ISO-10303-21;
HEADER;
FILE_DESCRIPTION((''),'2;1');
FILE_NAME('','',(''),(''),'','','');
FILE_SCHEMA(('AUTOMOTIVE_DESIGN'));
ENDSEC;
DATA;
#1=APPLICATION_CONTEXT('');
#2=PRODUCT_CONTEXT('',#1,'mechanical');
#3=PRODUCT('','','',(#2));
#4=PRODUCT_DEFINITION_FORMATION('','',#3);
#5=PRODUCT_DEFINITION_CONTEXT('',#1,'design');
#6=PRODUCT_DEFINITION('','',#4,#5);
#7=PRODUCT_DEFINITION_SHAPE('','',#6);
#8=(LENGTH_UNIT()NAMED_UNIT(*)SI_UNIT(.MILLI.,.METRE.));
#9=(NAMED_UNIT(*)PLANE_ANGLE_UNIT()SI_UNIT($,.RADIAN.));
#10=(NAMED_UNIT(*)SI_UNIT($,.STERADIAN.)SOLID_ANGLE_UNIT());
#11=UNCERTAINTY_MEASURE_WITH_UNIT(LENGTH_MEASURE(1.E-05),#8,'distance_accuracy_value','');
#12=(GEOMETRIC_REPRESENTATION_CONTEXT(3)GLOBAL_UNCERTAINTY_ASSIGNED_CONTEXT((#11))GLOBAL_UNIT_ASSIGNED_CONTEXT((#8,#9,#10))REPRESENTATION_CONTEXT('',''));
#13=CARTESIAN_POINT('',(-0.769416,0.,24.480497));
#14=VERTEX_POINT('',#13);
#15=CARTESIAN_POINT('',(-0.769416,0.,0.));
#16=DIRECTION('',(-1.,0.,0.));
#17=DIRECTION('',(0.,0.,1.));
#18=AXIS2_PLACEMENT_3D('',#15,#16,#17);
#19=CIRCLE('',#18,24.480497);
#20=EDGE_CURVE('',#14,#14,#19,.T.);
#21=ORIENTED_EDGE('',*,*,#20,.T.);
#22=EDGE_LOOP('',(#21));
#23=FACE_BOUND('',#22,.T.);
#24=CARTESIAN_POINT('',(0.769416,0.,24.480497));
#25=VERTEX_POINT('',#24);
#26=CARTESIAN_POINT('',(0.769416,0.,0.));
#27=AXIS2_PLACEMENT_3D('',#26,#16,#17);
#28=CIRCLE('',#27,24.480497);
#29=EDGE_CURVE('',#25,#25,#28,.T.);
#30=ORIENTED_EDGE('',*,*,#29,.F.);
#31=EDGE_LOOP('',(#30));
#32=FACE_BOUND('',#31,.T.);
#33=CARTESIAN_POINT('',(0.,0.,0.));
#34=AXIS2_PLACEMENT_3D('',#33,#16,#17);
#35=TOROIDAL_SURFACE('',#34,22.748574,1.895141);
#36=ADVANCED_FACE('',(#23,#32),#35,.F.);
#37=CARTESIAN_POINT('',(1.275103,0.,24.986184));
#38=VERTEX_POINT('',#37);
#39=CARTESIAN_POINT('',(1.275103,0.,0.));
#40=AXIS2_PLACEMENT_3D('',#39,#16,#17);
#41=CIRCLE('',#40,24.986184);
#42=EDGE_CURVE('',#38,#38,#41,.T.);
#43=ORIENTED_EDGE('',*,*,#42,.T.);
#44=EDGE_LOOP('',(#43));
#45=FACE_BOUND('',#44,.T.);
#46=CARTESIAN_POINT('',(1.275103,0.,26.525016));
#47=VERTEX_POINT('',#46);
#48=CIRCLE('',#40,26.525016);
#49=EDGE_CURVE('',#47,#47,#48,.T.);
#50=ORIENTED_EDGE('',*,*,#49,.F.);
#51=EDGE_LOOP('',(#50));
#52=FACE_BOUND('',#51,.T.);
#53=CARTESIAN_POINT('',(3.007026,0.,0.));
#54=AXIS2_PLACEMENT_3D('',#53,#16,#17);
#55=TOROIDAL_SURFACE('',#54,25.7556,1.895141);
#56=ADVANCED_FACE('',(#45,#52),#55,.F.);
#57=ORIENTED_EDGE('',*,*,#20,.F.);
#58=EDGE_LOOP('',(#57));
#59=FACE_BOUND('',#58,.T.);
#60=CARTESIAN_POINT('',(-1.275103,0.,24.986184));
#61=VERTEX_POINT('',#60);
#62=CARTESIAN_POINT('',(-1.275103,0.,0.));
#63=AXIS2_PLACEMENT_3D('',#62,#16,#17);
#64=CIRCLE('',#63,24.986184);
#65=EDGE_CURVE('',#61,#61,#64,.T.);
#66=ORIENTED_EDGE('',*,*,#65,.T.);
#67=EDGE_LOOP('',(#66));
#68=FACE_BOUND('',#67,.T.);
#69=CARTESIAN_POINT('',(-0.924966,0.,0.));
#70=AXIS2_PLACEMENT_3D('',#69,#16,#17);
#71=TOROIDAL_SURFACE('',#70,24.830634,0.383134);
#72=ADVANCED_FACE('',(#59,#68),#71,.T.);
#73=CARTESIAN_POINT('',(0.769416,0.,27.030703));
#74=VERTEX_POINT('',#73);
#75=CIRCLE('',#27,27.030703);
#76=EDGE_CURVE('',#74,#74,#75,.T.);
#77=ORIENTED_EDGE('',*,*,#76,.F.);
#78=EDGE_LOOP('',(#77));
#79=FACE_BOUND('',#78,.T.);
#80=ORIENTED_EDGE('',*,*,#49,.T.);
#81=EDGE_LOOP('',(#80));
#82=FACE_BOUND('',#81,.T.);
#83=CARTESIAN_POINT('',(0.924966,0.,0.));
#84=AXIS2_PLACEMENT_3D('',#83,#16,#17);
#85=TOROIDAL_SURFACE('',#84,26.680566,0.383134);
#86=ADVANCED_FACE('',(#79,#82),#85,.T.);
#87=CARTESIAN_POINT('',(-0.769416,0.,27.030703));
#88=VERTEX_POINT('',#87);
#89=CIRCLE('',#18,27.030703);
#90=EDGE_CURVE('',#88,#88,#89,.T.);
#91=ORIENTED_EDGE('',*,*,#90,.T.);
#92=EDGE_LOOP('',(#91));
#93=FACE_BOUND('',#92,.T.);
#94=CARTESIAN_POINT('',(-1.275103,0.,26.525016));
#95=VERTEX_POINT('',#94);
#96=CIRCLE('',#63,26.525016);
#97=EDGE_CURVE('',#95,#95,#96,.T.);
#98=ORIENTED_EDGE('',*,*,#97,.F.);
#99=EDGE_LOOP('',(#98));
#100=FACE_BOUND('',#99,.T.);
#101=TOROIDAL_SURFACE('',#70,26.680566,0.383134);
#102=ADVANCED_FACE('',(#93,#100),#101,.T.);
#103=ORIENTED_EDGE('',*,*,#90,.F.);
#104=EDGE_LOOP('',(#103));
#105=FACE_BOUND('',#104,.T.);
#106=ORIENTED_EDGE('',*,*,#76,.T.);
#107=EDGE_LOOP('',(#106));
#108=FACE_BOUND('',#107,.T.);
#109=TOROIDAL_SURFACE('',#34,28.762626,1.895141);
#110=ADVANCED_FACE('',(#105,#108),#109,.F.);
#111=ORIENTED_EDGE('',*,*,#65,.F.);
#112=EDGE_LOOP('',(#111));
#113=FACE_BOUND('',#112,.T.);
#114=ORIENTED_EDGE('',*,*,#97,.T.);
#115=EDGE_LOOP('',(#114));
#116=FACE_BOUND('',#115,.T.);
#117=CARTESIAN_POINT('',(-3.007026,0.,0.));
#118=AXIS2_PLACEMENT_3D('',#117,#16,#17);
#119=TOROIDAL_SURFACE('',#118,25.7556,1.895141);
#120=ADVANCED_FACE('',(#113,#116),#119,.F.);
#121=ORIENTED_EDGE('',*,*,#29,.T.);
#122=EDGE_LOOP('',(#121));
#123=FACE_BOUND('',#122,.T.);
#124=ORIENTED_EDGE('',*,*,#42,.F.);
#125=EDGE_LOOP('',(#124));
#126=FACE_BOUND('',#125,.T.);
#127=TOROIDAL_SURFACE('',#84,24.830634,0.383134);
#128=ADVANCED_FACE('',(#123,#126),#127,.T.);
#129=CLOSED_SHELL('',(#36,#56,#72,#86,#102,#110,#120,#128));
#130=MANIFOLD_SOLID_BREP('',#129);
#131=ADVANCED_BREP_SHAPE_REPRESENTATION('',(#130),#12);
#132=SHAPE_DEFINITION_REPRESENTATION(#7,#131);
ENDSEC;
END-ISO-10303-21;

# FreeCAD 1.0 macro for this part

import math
import FreeCAD as App
import Part
import Sketcher
Q = App.Units.Quantity

doc = App.newDocument("Part")
params = doc.addObject("Spreadsheet::Sheet", "Params")
for row, (alias, value) in enumerate([
    ("revolution_angle", "360 deg"),
], start=1):
    params.set(f"A{row}", alias)
    params.set(f"B{row}", "=" + value)
    params.setAlias(f"B{row}", alias)

body = doc.addObject("PartDesign::Body", "Body")

# Sketch on XY plane
sketch1 = doc.addObject("Sketcher::SketchObject", "Sketch")
body.addObject(sketch1)
sketch1.AttachmentSupport = (doc.XY_Plane, [""])
sketch1.MapMode = "FlatFace"
sketch1.addGeometry([
    Part.ArcOfCircle(Part.Circle(App.Vector(-3.007026, 25.7556, 0), App.Vector(0, 0, 1), 1.895141), math.radians(-23.953452), math.radians(23.953452)),  # 0
    Part.ArcOfCircle(Part.Circle(App.Vector(-0.924966, 24.830634, 0), App.Vector(0, 0, 1), 0.383134), math.radians(156.046548), math.radians(293.953452)),  # 1
    Part.ArcOfCircle(Part.Circle(App.Vector(0, 22.748574, 0), App.Vector(0, 0, 1), 1.895141), math.radians(66.046548), math.radians(113.953452)),  # 2
    Part.ArcOfCircle(Part.Circle(App.Vector(0.924966, 24.830634, 0), App.Vector(0, 0, 1), 0.383134), math.radians(-113.953452), math.radians(23.953452)),  # 3
    Part.ArcOfCircle(Part.Circle(App.Vector(3.007026, 25.7556, 0), App.Vector(0, 0, 1), 1.895141), math.radians(156.046548), math.radians(203.953452)),  # 4
    Part.ArcOfCircle(Part.Circle(App.Vector(0.924966, 26.680566, 0), App.Vector(0, 0, 1), 0.383134), math.radians(-23.953452), math.radians(113.953452)),  # 5
    Part.ArcOfCircle(Part.Circle(App.Vector(0, 28.762626, 0), App.Vector(0, 0, 1), 1.895141), math.radians(-113.953452), math.radians(-66.046548)),  # 6
    Part.ArcOfCircle(Part.Circle(App.Vector(-0.924966, 26.680566, 0), App.Vector(0, 0, 1), 0.383134), math.radians(66.046548), math.radians(203.953452)),  # 7
], False)
sketch1.addConstraint([
    Sketcher.Constraint("Tangent", 0, 1, 1, 1),
    Sketcher.Constraint("Tangent", 1, 2, 2, 2),
    Sketcher.Constraint("Tangent", 2, 1, 3, 1),
    Sketcher.Constraint("Tangent", 3, 2, 4, 2),
    Sketcher.Constraint("Tangent", 4, 1, 5, 1),
    Sketcher.Constraint("Tangent", 5, 2, 6, 2),
    Sketcher.Constraint("Tangent", 6, 1, 7, 1),
    Sketcher.Constraint("Tangent", 7, 2, 0, 2),
    Sketcher.Constraint("Equal", 0, 2),
    Sketcher.Constraint("Equal", 1, 3),
    Sketcher.Constraint("Equal", 2, 4),
    Sketcher.Constraint("Equal", 3, 5),
    Sketcher.Constraint("Equal", 4, 6),
    Sketcher.Constraint("Equal", 5, 7),
    Sketcher.Constraint("Symmetric", 1, 3, 3, 3, -2),
    Sketcher.Constraint("Symmetric", 5, 3, 7, 3, -2),
    Sketcher.Constraint("Vertical", 3, 3, 5, 3),
    Sketcher.Constraint("Radius", 0, Q("1.895141 mm")),
    Sketcher.Constraint("Radius", 1, Q("0.383134 mm")),
    Sketcher.Constraint("DistanceY", -1, 1, 0, 3, Q("25.7556 mm")),
    Sketcher.Constraint("DistanceX", 0, 3, 1, 3, Q("2.082059 mm")),
    Sketcher.Constraint("DistanceY", 2, 3, 1, 3, Q("2.082059 mm")),
])
revolution = doc.addObject("PartDesign::Revolution", "Revolution")
body.addObject(revolution)
revolution.Profile = sketch1
revolution.ReferenceAxis = (sketch1, ["H_Axis"])
revolution.setExpression("Angle", "Params.revolution_angle")

doc.recompute()
